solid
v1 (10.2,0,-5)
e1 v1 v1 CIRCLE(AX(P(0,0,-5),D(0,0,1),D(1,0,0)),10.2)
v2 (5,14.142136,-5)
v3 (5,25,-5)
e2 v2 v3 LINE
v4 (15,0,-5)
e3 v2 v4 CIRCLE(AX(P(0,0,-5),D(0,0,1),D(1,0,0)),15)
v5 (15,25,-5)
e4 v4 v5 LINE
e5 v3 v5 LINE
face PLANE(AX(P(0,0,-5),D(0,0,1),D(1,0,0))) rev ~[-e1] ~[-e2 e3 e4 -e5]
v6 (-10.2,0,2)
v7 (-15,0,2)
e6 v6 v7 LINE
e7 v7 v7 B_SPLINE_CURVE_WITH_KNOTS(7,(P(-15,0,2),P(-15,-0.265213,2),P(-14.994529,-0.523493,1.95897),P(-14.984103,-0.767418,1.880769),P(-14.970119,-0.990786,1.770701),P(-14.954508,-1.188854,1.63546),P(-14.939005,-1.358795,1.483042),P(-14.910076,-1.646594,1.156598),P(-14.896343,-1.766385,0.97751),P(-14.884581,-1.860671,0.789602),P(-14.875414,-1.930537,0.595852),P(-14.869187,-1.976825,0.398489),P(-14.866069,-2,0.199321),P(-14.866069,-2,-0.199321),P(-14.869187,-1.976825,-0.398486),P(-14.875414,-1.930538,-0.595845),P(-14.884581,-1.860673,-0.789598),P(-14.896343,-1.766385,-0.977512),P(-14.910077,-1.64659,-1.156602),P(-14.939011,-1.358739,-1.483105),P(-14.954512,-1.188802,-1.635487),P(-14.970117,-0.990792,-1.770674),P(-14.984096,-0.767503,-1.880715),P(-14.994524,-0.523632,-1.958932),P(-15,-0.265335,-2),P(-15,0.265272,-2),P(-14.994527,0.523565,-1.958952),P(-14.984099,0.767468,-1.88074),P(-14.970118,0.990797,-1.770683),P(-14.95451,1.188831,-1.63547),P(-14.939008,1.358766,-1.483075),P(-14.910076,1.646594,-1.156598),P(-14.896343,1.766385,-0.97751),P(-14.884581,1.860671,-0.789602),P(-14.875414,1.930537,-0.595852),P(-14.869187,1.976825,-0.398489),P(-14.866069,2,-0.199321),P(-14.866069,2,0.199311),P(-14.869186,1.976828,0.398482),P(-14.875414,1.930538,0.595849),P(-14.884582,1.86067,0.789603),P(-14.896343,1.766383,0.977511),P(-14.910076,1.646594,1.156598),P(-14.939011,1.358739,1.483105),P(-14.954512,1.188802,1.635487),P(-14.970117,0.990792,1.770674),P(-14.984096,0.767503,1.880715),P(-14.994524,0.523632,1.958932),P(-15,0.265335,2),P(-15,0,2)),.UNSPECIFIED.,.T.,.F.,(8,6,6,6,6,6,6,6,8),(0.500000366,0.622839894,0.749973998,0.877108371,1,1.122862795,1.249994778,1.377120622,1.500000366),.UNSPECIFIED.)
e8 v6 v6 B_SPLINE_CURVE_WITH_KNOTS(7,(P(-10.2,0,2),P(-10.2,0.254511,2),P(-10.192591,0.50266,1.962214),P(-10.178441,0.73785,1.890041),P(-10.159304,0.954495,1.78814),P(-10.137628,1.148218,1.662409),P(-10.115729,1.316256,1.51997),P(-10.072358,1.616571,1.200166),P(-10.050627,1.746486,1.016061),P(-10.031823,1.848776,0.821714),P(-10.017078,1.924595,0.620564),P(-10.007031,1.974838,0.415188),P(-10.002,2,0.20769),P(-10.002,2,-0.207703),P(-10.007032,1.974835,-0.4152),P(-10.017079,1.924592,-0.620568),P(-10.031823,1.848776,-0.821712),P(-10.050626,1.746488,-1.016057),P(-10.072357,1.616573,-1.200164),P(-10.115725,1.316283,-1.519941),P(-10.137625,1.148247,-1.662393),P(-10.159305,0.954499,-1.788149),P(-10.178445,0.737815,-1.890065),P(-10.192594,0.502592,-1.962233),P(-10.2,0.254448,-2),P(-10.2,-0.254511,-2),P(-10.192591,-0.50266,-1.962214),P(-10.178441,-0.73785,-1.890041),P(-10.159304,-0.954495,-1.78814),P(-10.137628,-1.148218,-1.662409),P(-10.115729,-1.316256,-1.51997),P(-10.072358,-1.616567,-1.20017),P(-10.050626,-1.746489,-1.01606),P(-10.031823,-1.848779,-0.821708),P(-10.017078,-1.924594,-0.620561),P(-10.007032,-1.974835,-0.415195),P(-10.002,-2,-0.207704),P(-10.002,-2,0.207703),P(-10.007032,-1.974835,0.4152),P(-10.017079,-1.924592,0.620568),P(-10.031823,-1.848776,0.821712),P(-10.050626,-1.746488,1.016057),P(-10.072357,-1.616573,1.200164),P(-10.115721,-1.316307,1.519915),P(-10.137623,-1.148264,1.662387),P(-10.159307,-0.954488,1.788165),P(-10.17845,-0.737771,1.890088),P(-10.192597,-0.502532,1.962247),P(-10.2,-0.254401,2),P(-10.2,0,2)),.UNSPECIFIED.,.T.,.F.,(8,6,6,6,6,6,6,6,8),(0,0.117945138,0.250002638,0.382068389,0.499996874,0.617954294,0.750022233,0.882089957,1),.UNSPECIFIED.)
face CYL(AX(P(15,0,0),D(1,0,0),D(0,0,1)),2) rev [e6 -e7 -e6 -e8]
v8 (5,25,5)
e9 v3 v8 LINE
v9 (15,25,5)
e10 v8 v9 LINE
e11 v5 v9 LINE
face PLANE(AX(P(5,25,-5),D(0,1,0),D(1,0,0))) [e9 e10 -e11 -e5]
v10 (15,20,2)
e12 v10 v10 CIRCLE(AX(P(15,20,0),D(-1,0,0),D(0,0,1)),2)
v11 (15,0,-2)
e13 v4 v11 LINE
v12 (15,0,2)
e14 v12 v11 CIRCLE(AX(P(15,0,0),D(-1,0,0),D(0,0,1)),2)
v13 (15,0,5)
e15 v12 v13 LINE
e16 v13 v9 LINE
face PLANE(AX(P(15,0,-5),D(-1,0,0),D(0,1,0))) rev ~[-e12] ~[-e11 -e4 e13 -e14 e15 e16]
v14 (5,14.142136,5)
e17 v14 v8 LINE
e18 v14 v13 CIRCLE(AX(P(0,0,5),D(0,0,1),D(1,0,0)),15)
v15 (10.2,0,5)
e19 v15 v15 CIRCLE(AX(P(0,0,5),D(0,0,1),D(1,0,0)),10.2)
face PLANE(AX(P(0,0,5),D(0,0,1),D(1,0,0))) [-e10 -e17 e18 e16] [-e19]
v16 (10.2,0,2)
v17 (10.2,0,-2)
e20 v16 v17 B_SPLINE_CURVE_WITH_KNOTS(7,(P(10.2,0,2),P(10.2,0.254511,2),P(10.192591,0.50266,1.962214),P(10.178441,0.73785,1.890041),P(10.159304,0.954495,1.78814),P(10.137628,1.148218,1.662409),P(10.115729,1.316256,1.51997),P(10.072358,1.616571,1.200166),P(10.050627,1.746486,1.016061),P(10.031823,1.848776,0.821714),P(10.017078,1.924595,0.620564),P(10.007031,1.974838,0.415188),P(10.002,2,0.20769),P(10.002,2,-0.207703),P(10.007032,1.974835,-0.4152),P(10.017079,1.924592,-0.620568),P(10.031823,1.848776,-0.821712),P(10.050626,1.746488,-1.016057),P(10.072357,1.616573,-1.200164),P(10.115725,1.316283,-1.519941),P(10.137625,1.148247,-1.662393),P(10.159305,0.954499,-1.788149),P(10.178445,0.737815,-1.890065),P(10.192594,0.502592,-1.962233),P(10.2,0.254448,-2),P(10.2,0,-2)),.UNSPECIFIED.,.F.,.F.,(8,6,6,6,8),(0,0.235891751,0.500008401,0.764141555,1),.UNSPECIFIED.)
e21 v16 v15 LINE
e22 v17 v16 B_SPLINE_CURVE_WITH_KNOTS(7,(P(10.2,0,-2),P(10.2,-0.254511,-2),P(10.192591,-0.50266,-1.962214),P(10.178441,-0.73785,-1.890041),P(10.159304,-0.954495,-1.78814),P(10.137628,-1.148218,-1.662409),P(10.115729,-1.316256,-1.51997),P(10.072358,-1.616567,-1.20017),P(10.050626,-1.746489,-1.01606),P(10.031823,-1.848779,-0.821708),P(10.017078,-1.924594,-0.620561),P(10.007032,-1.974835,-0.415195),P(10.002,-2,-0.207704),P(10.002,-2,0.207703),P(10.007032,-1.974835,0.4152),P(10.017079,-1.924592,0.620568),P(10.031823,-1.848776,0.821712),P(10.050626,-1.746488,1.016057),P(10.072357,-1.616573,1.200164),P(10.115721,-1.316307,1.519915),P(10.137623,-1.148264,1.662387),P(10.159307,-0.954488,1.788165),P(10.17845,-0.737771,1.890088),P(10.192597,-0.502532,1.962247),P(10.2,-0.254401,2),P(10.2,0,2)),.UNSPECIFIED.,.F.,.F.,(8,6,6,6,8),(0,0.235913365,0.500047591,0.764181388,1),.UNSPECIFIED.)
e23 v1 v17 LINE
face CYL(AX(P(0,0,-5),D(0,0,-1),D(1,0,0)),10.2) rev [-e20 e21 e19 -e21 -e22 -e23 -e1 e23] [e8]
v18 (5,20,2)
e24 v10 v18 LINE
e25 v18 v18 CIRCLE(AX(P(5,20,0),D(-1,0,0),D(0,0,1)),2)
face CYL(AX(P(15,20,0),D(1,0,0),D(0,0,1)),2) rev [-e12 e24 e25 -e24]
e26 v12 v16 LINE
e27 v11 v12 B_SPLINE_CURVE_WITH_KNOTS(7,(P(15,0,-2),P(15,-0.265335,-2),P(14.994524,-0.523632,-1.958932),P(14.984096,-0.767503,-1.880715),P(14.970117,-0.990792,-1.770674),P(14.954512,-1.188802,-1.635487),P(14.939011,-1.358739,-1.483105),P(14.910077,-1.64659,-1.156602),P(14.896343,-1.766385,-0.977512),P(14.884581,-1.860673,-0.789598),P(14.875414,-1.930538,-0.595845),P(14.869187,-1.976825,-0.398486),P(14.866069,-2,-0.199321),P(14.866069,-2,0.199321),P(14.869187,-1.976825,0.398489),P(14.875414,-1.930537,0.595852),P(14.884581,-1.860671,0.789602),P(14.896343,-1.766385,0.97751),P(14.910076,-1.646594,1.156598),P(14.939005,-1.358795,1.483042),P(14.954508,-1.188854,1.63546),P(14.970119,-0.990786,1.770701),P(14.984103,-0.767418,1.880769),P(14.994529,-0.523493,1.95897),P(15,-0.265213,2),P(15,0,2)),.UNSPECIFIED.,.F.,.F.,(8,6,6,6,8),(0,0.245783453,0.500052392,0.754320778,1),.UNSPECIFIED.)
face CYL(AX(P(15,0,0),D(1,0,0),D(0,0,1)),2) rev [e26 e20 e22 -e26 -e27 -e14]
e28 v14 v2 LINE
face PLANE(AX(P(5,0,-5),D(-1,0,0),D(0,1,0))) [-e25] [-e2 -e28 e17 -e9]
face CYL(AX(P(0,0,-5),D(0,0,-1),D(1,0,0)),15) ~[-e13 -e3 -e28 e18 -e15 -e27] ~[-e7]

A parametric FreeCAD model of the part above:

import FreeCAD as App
import Part
import Sketcher
from FreeCAD import Vector


def add_polygon(sketch, points):
    """Adds a closed chain of lines whose ends are joined by coincident constraints."""
    first, n = sketch.GeometryCount, len(points)
    for a, b in zip(points, points[1:] + points[:1]):
        sketch.addGeometry(Part.LineSegment(App.Vector(*a, 0), App.Vector(*b, 0)), False)
    for i in range(n):
        sketch.addConstraint(Sketcher.Constraint("Coincident", first + i, 2, first + (i + 1) % n, 1))

doc = App.newDocument("Part")
body = doc.addObject("PartDesign::Body", "Body")

# Sketch on YZ plane
sketch1 = body.newObject("Sketcher::SketchObject", "Sketch")
sketch1.AttachmentSupport = (doc.getObject("YZ_Plane"), [""])
sketch1.MapMode = "FlatFace"
sketch1.AttachmentOffset = App.Placement(Vector(0, 0, 15), App.Rotation())
sketch1.addGeometry(Part.Circle(Vector(20, 0, 0), Vector(0, 0, 1), 2), False)
sketch1.addConstraint(Sketcher.Constraint("PointOnObject", 0, 3, -1))
sketch1.addConstraint(Sketcher.Constraint("Diameter", 0, 4.0))
sketch1.addConstraint(Sketcher.Constraint("DistanceX", -1, 1, 0, 3, 20.0))
pad1 = body.newObject("PartDesign::Pad", "Pad")
pad1.Profile = sketch1
pad1.Length = 10
pad1.Reversed = True
body2 = doc.addObject("PartDesign::Body", "Body001")

# Sketch on YZ plane
sketch2 = body2.newObject("Sketcher::SketchObject", "Sketch001")
sketch2.AttachmentSupport = (doc.getObject("YZ_Plane001"), [""])
sketch2.MapMode = "FlatFace"
sketch2.AttachmentOffset = App.Placement(Vector(0, 0, 15), App.Rotation())
sketch2.addGeometry(Part.Circle(Vector(0, 0, 0), Vector(0, 0, 1), 2), False)
sketch2.addConstraint(Sketcher.Constraint("Coincident", 0, 3, -1, 1))
sketch2.addConstraint(Sketcher.Constraint("Diameter", 0, 4.0))
pad2 = body2.newObject("PartDesign::Pad", "Pad001")
pad2.Profile = sketch2
pad2.Length = 30
pad2.Reversed = True
body3 = doc.addObject("PartDesign::Body", "Body002")
body3.AllowCompound = True

# Sketch on XY plane
sketch3 = body3.newObject("Sketcher::SketchObject", "Sketch002")
sketch3.AttachmentSupport = (doc.getObject("XY_Plane002"), [""])
sketch3.MapMode = "FlatFace"
sketch3.AttachmentOffset = App.Placement(Vector(0, 0, -5), App.Rotation())
sketch3.addGeometry(Part.Circle(Vector(0, 0, 0), Vector(0, 0, 1), 10.2), False)
sketch3.addConstraint(Sketcher.Constraint("Coincident", 0, 3, -1, 1))
sketch3.addConstraint(Sketcher.Constraint("Diameter", 0, 20.4))
pad3 = body3.newObject("PartDesign::Pad", "Pad002")
pad3.Profile = sketch3
pad3.Length = 10
doc.recompute()

boolean = body3.newObject("PartDesign::Boolean", "Boolean")
boolean.Type = "Fuse"
boolean.addObjects([body])
doc.recompute()

boolean2 = body3.newObject("PartDesign::Boolean", "Boolean001")
boolean2.Type = "Fuse"
boolean2.addObjects([body2])
body4 = doc.addObject("PartDesign::Body", "Body003")

# Sketch on XY plane
sketch4 = body4.newObject("Sketcher::SketchObject", "Sketch003")
sketch4.AttachmentSupport = (doc.getObject("XY_Plane003"), [""])
sketch4.MapMode = "FlatFace"
sketch4.AttachmentOffset = App.Placement(Vector(0, 0, -5), App.Rotation())
add_polygon(sketch4, [(5, 25), (5, 0), (15, 0), (15, 25)])  # lines 0-3
sketch4.addConstraint(Sketcher.Constraint("Vertical", 0))
sketch4.addConstraint(Sketcher.Constraint("Horizontal", 1))
sketch4.addConstraint(Sketcher.Constraint("Vertical", 2))
sketch4.addConstraint(Sketcher.Constraint("Horizontal", 3))
sketch4.addConstraint(Sketcher.Constraint("PointOnObject", 0, 2, -1))
sketch4.addConstraint(Sketcher.Constraint("DistanceX", 1, 1, 1, 2, 10.0))
sketch4.addConstraint(Sketcher.Constraint("DistanceY", 0, 2, 0, 1, 25.0))
sketch4.addConstraint(Sketcher.Constraint("DistanceX", -1, 1, 0, 2, 5.0))
pad4 = body4.newObject("PartDesign::Pad", "Pad003")
pad4.Profile = sketch4
pad4.Length = 10
body5 = doc.addObject("PartDesign::Body", "Body004")

# Sketch on XY plane
sketch5 = body5.newObject("Sketcher::SketchObject", "Sketch004")
sketch5.AttachmentSupport = (doc.getObject("XY_Plane004"), [""])
sketch5.MapMode = "FlatFace"
sketch5.AttachmentOffset = App.Placement(Vector(0, 0, -5), App.Rotation())
sketch5.addGeometry(Part.Circle(Vector(0, 0, 0), Vector(0, 0, 1), 15), False)
sketch5.addConstraint(Sketcher.Constraint("Coincident", 0, 3, -1, 1))
sketch5.addConstraint(Sketcher.Constraint("Diameter", 0, 30.0))
pad5 = body5.newObject("PartDesign::Pad", "Pad004")
pad5.Profile = sketch5
pad5.Length = 10
doc.recompute()

boolean3 = body5.newObject("PartDesign::Boolean", "Boolean002")
boolean3.Type = "Fuse"
boolean3.addObjects([body4])
doc.recompute()

boolean4 = body5.newObject("PartDesign::Boolean", "Boolean003")
boolean4.Type = "Cut"
boolean4.addObjects([body3])

doc.recompute()
